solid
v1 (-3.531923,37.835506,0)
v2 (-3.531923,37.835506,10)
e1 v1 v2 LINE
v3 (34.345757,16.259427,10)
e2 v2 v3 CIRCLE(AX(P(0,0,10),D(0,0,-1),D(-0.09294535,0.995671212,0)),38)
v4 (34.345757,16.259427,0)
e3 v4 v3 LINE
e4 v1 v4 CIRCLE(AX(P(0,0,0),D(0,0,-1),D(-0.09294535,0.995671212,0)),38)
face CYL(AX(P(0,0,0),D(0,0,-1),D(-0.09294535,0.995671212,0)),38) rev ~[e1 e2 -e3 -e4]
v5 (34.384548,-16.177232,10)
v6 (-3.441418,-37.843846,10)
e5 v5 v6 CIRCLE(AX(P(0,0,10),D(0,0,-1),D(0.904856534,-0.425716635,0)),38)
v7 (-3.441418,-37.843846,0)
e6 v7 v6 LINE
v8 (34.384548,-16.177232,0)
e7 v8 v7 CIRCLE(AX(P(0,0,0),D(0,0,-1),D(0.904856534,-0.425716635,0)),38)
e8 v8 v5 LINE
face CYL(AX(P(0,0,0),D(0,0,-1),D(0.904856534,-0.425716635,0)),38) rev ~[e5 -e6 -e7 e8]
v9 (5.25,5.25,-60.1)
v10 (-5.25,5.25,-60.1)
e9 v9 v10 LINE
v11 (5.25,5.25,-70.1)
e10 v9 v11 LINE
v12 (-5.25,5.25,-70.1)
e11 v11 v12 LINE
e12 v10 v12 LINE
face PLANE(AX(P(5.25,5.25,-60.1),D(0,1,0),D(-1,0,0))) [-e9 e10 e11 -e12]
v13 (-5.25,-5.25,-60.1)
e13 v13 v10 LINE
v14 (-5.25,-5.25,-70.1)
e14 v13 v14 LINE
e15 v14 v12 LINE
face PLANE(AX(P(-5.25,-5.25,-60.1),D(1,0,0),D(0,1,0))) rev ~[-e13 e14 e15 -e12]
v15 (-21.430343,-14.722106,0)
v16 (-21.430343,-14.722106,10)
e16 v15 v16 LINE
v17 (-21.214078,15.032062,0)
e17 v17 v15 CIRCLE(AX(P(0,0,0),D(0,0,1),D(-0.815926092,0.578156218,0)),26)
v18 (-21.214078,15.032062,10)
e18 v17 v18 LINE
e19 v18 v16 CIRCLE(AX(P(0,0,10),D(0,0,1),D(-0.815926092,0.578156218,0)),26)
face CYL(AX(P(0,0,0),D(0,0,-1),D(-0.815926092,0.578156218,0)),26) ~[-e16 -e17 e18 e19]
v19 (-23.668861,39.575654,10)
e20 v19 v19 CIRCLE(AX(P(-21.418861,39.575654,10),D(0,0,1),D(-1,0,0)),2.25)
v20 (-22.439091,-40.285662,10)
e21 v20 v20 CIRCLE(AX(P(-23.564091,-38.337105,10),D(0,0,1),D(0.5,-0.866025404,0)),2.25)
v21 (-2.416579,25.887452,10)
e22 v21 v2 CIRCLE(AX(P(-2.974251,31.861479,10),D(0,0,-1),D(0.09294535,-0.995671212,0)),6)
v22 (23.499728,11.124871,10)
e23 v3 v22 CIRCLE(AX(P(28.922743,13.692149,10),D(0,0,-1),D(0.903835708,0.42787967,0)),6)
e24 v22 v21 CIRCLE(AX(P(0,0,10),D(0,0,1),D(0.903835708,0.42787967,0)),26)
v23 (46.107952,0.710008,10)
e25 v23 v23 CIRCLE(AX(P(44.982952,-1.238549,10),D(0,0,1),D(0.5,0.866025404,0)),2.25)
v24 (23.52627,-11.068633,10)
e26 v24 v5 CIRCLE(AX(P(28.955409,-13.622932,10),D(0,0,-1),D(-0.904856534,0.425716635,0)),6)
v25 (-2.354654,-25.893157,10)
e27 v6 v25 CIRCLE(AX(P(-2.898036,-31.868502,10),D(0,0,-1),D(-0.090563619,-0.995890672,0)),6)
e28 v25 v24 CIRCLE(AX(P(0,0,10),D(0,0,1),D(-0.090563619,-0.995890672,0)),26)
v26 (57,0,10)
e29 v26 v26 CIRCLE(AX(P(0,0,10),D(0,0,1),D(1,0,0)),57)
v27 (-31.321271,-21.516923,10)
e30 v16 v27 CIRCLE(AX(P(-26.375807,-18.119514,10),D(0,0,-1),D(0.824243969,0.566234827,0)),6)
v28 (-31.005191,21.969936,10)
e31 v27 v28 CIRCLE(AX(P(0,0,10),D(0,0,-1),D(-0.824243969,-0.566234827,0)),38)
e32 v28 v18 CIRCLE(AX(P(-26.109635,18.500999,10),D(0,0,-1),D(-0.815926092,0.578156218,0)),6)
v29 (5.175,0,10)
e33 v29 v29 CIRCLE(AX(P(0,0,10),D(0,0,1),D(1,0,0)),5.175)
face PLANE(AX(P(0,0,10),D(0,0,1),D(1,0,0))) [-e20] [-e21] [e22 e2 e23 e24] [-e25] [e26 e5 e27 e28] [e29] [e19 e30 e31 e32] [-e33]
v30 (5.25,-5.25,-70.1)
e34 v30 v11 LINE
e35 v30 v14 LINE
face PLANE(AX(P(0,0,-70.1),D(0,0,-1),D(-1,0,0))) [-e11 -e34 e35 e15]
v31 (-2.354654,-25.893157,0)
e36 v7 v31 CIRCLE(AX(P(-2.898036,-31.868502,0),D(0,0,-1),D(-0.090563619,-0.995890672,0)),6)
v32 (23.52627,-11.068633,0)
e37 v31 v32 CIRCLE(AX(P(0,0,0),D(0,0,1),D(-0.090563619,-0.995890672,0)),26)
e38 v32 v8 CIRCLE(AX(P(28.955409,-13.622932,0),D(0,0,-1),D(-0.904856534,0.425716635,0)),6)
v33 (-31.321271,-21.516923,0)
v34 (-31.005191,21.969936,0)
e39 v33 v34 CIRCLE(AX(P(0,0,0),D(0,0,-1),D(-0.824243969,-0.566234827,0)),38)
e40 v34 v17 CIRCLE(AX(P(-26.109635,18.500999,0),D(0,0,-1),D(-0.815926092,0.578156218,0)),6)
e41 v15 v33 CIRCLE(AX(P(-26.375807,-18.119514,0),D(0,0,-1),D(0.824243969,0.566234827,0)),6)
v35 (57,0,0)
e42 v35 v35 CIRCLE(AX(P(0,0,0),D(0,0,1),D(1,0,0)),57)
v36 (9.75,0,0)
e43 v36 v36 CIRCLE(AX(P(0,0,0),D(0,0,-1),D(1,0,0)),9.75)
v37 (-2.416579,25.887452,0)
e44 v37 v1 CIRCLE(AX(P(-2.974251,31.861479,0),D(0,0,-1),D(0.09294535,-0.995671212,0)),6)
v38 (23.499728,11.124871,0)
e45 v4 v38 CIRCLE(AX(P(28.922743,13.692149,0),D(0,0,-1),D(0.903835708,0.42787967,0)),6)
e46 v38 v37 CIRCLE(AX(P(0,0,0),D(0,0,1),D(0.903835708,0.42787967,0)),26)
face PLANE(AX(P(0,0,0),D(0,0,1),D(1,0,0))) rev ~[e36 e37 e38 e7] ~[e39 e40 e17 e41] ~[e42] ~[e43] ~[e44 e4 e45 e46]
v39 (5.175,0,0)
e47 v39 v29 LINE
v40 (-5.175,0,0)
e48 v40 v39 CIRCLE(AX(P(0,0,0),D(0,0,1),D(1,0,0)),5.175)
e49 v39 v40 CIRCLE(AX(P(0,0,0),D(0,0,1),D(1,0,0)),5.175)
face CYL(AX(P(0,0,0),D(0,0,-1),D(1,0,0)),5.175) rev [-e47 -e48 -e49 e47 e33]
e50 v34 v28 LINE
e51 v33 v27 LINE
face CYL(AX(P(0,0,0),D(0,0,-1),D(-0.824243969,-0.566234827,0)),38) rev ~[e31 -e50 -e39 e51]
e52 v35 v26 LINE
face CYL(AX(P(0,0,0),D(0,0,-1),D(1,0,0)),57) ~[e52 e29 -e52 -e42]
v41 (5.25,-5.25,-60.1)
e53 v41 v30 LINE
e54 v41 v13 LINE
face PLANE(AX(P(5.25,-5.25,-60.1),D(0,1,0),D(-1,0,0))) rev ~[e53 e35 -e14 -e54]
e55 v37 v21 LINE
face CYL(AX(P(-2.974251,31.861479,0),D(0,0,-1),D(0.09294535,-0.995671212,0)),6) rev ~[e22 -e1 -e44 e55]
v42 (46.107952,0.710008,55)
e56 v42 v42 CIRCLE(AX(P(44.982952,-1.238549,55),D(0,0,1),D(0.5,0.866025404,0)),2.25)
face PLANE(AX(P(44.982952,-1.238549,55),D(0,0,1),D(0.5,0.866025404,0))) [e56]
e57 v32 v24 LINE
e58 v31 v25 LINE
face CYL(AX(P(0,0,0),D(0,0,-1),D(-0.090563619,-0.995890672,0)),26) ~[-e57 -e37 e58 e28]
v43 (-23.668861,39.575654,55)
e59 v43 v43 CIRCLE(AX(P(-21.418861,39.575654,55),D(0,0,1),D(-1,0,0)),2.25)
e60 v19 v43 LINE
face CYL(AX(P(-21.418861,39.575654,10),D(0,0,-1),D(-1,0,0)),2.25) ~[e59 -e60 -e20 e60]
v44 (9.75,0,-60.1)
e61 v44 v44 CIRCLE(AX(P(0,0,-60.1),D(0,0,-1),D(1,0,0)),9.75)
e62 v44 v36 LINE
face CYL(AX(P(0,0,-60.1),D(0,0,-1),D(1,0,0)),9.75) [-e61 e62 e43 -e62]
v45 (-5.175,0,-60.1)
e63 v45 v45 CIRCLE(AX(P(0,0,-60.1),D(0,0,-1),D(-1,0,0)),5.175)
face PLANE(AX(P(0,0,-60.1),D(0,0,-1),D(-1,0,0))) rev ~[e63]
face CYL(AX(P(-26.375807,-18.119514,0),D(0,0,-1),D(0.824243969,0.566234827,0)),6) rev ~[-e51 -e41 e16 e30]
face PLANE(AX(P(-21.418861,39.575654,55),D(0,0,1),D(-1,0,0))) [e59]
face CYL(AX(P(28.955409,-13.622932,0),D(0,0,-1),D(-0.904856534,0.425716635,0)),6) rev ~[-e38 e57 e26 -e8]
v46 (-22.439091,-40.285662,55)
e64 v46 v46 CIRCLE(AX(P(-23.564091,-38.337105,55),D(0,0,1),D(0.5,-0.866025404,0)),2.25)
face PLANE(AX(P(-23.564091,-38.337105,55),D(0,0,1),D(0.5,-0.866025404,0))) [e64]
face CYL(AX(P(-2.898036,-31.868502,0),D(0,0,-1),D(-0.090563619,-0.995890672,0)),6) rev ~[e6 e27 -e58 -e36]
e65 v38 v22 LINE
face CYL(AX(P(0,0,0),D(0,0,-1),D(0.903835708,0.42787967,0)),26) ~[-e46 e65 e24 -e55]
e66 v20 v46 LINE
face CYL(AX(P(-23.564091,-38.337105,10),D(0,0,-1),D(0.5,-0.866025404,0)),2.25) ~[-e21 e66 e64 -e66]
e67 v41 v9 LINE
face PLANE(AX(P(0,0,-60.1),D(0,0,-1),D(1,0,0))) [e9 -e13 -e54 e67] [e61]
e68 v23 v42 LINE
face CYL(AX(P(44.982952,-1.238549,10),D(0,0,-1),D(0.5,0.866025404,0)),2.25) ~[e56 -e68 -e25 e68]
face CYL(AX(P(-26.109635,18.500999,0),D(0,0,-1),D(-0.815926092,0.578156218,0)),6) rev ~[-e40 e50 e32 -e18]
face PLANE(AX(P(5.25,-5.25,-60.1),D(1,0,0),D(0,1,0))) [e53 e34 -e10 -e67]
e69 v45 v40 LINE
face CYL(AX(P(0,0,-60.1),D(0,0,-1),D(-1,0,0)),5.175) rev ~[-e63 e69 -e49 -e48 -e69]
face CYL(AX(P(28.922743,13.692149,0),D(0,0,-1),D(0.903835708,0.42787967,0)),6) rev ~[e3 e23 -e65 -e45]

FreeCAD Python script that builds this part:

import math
import FreeCAD as App
import Part
import Sketcher
Q = App.Units.Quantity

doc = App.newDocument("Part")
body = doc.addObject("PartDesign::Body", "Body")

sketch1 = doc.addObject("Sketcher::SketchObject", "Sketch")
body.addObject(sketch1)
sketch1.AttachmentSupport = (doc.XY_Plane, [""])
sketch1.MapMode = "FlatFace"
sketch1.addGeometry(Part.Circle(App.Vector(0, 0, 0), App.Vector(0, 0, 1), 57), False)
sketch1.addGeometry(Part.Circle(App.Vector(0, 0, 0), App.Vector(0, 0, 1), 5.175), False)
sketch1.addConstraint(Sketcher.Constraint("Coincident", 0, 3, -1, 1))
sketch1.addConstraint(Sketcher.Constraint("Coincident", 1, 3, -1, 1))
sketch1.addConstraint(Sketcher.Constraint("Diameter", 0, Q("114 mm")))
sketch1.addConstraint(Sketcher.Constraint("Diameter", 1, Q("10.35 mm")))
pad1 = doc.addObject("PartDesign::Pad", "Pad")
body.addObject(pad1)
pad1.Profile = sketch1
pad1.Length = 10

sketch2 = doc.addObject("Sketcher::SketchObject", "Sketch001")
body.addObject(sketch2)
sketch2.AttachmentSupport = (doc.XY_Plane, [""])
sketch2.MapMode = "FlatFace"
sketch2.AttachmentOffset = App.Placement(App.Vector(0, 0, 10), App.Rotation())
sketch2.addGeometry(Part.Circle(App.Vector(-21.418861, 39.575654, 0), App.Vector(0, 0, 1), 2.25), False)
sketch2.addConstraint(Sketcher.Constraint("Diameter", 0, Q("4.5 mm")))
sketch2.addConstraint(Sketcher.Constraint("DistanceX", 0, 3, -1, 1, Q("21.418861 mm")))
sketch2.addConstraint(Sketcher.Constraint("DistanceY", -1, 1, 0, 3, Q("39.575654 mm")))
pad2 = doc.addObject("PartDesign::Pad", "Pad001")
body.addObject(pad2)
pad2.Profile = sketch2
pad2.Length = 45

sketch3 = doc.addObject("Sketcher::SketchObject", "Sketch002")
body.addObject(sketch3)
sketch3.AttachmentSupport = (doc.XY_Plane, [""])
sketch3.MapMode = "FlatFace"
sketch3.AttachmentOffset = App.Placement(App.Vector(0, 0, -60.1), App.Rotation())
sketch3.addGeometry(Part.Circle(App.Vector(0, 0, 0), App.Vector(0, 0, 1), 9.75), False)
sketch3.addGeometry(Part.Circle(App.Vector(0, 0, 0), App.Vector(0, 0, 1), 5.175), False)
sketch3.addConstraint(Sketcher.Constraint("Coincident", 0, 3, -1, 1))
sketch3.addConstraint(Sketcher.Constraint("Coincident", 1, 3, -1, 1))
sketch3.addConstraint(Sketcher.Constraint("Diameter", 0, Q("19.5 mm")))
sketch3.addConstraint(Sketcher.Constraint("Diameter", 1, Q("10.35 mm")))
pad3 = doc.addObject("PartDesign::Pad", "Pad002")
body.addObject(pad3)
pad3.Profile = sketch3
pad3.Length = 60.1

sketch4 = doc.addObject("Sketcher::SketchObject", "Sketch003")
body.addObject(sketch4)
sketch4.AttachmentSupport = (doc.XY_Plane, [""])
sketch4.MapMode = "FlatFace"
sketch4.AttachmentOffset = App.Placement(App.Vector(0, 0, -60.1), App.Rotation())
sketch4.addGeometry(Part.LineSegment(App.Vector(5.25, 5.25, 0), App.Vector(5.25, -5.25, 0)), False)
sketch4.addGeometry(Part.LineSegment(App.Vector(5.25, -5.25, 0), App.Vector(-5.25, -5.25, 0)), False)
sketch4.addGeometry(Part.LineSegment(App.Vector(-5.25, -5.25, 0), App.Vector(-5.25, 5.25, 0)), False)
sketch4.addGeometry(Part.LineSegment(App.Vector(-5.25, 5.25, 0), App.Vector(5.25, 5.25, 0)), False)
sketch4.addConstraint(Sketcher.Constraint("Coincident", 0, 2, 1, 1))
sketch4.addConstraint(Sketcher.Constraint("Coincident", 1, 2, 2, 1))
sketch4.addConstraint(Sketcher.Constraint("Coincident", 2, 2, 3, 1))
sketch4.addConstraint(Sketcher.Constraint("Coincident", 3, 2, 0, 1))
sketch4.addConstraint(Sketcher.Constraint("Vertical", 0))
sketch4.addConstraint(Sketcher.Constraint("Horizontal", 1))
sketch4.addConstraint(Sketcher.Constraint("Vertical", 2))
sketch4.addConstraint(Sketcher.Constraint("Horizontal", 3))
sketch4.addConstraint(Sketcher.Constraint("Symmetric", 0, 2, 2, 2, -1, 1))
sketch4.addConstraint(Sketcher.Constraint("Equal", 3, 0))
sketch4.addConstraint(Sketcher.Constraint("DistanceX", 1, 2, 1, 1, Q("10.5 mm")))
pad4 = doc.addObject("PartDesign::Pad", "Pad003")
body.addObject(pad4)
pad4.Profile = sketch4
pad4.Length = 10
pad4.Reversed = True

sketch5 = doc.addObject("Sketcher::SketchObject", "Sketch004")
body.addObject(sketch5)
sketch5.AttachmentSupport = (doc.XY_Plane, [""])
sketch5.MapMode = "FlatFace"
sketch5.addGeometry(Part.ArcOfCircle(Part.Circle(App.Vector(0, 0, 0), App.Vector(0, 0, 1), 38), math.radians(144.679035), math.radians(214.488084)), False)
sketch5.addGeometry(Part.ArcOfCircle(Part.Circle(App.Vector(-26.109635, 18.500999, 0), App.Vector(0, 0, 1), 6), math.radians(-35.320965), math.radians(144.679035)), False)
sketch5.addGeometry(Part.ArcOfCircle(Part.Circle(App.Vector(0, 0, 0), App.Vector(0, 0, 1), 26), math.radians(144.679035), math.radians(214.488084)), False)
sketch5.addGeometry(Part.ArcOfCircle(Part.Circle(App.Vector(-26.375807, -18.119514, 0), App.Vector(0, 0, 1), 6), math.radians(-145.511916), math.radians(34.488084)), False)
sketch5.addGeometry(Part.ArcOfCircle(Part.Circle(App.Vector(0, 0, 0), App.Vector(0, 0, 1), 38), math.radians(-95.196033), math.radians(-25.196032)), False)
sketch5.addGeometry(Part.ArcOfCircle(Part.Circle(App.Vector(-2.898036, -31.868502, 0), App.Vector(0, 0, 1), 6), math.radians(84.803968), math.radians(264.803968)), False)
sketch5.addGeometry(Part.ArcOfCircle(Part.Circle(App.Vector(0, 0, 0), App.Vector(0, 0, 1), 26), math.radians(-95.196033), math.radians(-25.196032)), False)
sketch5.addGeometry(Part.ArcOfCircle(Part.Circle(App.Vector(28.955409, -13.622932, 0), App.Vector(0, 0, 1), 6), math.radians(-25.196033), math.radians(154.803968)), False)
sketch5.addGeometry(Part.ArcOfCircle(Part.Circle(App.Vector(0, 0, 0), App.Vector(0, 0, 1), 38), math.radians(25.333074), math.radians(95.333074)), False)
sketch5.addGeometry(Part.ArcOfCircle(Part.Circle(App.Vector(28.922743, 13.692149, 0), App.Vector(0, 0, 1), 6), math.radians(-154.666926), math.radians(25.333074)), False)
sketch5.addGeometry(Part.ArcOfCircle(Part.Circle(App.Vector(0, 0, 0), App.Vector(0, 0, 1), 26), math.radians(25.333074), math.radians(95.333074)), False)
sketch5.addGeometry(Part.ArcOfCircle(Part.Circle(App.Vector(-2.974251, 31.861479, 0), App.Vector(0, 0, 1), 6), math.radians(95.333074), math.radians(275.333074)), False)
sketch5.addConstraint(Sketcher.Constraint("Tangent", 0, 1, 1, 2))
sketch5.addConstraint(Sketcher.Constraint("Tangent", 1, 1, 2, 1))
sketch5.addConstraint(Sketcher.Constraint("Tangent", 2, 2, 3, 2))
sketch5.addConstraint(Sketcher.Constraint("Tangent", 3, 1, 0, 2))
sketch5.addConstraint(Sketcher.Constraint("Tangent", 4, 1, 5, 2))
sketch5.addConstraint(Sketcher.Constraint("Tangent", 5, 1, 6, 1))
sketch5.addConstraint(Sketcher.Constraint("Tangent", 6, 2, 7, 2))
sketch5.addConstraint(Sketcher.Constraint("Tangent", 7, 1, 4, 2))
sketch5.addConstraint(Sketcher.Constraint("Tangent", 8, 1, 9, 2))
sketch5.addConstraint(Sketcher.Constraint("Tangent", 9, 1, 10, 1))
sketch5.addConstraint(Sketcher.Constraint("Tangent", 10, 2, 11, 2))
sketch5.addConstraint(Sketcher.Constraint("Tangent", 11, 1, 8, 2))
sketch5.addConstraint(Sketcher.Constraint("Coincident", 0, 3, -1, 1))
sketch5.addConstraint(Sketcher.Constraint("Coincident", 2, 3, -1, 1))
sketch5.addConstraint(Sketcher.Constraint("Coincident", 4, 3, -1, 1))
sketch5.addConstraint(Sketcher.Constraint("Coincident", 6, 3, -1, 1))
sketch5.addConstraint(Sketcher.Constraint("Coincident", 8, 3, -1, 1))
sketch5.addConstraint(Sketcher.Constraint("Coincident", 10, 3, -1, 1))
sketch5.addConstraint(Sketcher.Constraint("Equal", 0, 4))
sketch5.addConstraint(Sketcher.Constraint("Equal", 3, 5))
sketch5.addConstraint(Sketcher.Constraint("Equal", 4, 8))
sketch5.addConstraint(Sketcher.Constraint("Equal", 7, 9))
sketch5.addConstraint(Sketcher.Constraint("Radius", 0, Q("38 mm")))
sketch5.addConstraint(Sketcher.Constraint("Radius", 1, Q("6 mm")))
sketch5.addConstraint(Sketcher.Constraint("DistanceY", -1, 1, 1, 3, Q("18.500999 mm")))
sketch5.addConstraint(Sketcher.Constraint("DistanceY", 5, 3, -1, 1, Q("31.868502 mm")))
sketch5.addConstraint(Sketcher.Constraint("DistanceY", 7, 3, 6, 2, Q("2.5543 mm")))
sketch5.addConstraint(Sketcher.Constraint("DistanceX", 1, 1, 10, 2, Q("18.797499 mm")))
sketch5.addConstraint(Sketcher.Constraint("DistanceY", -1, 1, 9, 3, Q("13.692149 mm")))
sketch5.addConstraint(Sketcher.Constraint("DistanceX", 3, 1, -1, 1, Q("31.321271 mm")))
pocket1 = doc.addObject("PartDesign::Pocket", "Pocket")
body.addObject(pocket1)
pocket1.Profile = sketch5
pocket1.Length = 10
pocket1.Reversed = True
doc.recompute()

polarpattern = doc.addObject("PartDesign::PolarPattern", "PolarPattern")
body.addObject(polarpattern)
polarpattern.Originals = [pad2]
polarpattern.Axis = (doc.Z_Axis, [""])
polarpattern.Angle = 360
polarpattern.Occurrences = 3
body.Tip = polarpattern

doc.recompute()
